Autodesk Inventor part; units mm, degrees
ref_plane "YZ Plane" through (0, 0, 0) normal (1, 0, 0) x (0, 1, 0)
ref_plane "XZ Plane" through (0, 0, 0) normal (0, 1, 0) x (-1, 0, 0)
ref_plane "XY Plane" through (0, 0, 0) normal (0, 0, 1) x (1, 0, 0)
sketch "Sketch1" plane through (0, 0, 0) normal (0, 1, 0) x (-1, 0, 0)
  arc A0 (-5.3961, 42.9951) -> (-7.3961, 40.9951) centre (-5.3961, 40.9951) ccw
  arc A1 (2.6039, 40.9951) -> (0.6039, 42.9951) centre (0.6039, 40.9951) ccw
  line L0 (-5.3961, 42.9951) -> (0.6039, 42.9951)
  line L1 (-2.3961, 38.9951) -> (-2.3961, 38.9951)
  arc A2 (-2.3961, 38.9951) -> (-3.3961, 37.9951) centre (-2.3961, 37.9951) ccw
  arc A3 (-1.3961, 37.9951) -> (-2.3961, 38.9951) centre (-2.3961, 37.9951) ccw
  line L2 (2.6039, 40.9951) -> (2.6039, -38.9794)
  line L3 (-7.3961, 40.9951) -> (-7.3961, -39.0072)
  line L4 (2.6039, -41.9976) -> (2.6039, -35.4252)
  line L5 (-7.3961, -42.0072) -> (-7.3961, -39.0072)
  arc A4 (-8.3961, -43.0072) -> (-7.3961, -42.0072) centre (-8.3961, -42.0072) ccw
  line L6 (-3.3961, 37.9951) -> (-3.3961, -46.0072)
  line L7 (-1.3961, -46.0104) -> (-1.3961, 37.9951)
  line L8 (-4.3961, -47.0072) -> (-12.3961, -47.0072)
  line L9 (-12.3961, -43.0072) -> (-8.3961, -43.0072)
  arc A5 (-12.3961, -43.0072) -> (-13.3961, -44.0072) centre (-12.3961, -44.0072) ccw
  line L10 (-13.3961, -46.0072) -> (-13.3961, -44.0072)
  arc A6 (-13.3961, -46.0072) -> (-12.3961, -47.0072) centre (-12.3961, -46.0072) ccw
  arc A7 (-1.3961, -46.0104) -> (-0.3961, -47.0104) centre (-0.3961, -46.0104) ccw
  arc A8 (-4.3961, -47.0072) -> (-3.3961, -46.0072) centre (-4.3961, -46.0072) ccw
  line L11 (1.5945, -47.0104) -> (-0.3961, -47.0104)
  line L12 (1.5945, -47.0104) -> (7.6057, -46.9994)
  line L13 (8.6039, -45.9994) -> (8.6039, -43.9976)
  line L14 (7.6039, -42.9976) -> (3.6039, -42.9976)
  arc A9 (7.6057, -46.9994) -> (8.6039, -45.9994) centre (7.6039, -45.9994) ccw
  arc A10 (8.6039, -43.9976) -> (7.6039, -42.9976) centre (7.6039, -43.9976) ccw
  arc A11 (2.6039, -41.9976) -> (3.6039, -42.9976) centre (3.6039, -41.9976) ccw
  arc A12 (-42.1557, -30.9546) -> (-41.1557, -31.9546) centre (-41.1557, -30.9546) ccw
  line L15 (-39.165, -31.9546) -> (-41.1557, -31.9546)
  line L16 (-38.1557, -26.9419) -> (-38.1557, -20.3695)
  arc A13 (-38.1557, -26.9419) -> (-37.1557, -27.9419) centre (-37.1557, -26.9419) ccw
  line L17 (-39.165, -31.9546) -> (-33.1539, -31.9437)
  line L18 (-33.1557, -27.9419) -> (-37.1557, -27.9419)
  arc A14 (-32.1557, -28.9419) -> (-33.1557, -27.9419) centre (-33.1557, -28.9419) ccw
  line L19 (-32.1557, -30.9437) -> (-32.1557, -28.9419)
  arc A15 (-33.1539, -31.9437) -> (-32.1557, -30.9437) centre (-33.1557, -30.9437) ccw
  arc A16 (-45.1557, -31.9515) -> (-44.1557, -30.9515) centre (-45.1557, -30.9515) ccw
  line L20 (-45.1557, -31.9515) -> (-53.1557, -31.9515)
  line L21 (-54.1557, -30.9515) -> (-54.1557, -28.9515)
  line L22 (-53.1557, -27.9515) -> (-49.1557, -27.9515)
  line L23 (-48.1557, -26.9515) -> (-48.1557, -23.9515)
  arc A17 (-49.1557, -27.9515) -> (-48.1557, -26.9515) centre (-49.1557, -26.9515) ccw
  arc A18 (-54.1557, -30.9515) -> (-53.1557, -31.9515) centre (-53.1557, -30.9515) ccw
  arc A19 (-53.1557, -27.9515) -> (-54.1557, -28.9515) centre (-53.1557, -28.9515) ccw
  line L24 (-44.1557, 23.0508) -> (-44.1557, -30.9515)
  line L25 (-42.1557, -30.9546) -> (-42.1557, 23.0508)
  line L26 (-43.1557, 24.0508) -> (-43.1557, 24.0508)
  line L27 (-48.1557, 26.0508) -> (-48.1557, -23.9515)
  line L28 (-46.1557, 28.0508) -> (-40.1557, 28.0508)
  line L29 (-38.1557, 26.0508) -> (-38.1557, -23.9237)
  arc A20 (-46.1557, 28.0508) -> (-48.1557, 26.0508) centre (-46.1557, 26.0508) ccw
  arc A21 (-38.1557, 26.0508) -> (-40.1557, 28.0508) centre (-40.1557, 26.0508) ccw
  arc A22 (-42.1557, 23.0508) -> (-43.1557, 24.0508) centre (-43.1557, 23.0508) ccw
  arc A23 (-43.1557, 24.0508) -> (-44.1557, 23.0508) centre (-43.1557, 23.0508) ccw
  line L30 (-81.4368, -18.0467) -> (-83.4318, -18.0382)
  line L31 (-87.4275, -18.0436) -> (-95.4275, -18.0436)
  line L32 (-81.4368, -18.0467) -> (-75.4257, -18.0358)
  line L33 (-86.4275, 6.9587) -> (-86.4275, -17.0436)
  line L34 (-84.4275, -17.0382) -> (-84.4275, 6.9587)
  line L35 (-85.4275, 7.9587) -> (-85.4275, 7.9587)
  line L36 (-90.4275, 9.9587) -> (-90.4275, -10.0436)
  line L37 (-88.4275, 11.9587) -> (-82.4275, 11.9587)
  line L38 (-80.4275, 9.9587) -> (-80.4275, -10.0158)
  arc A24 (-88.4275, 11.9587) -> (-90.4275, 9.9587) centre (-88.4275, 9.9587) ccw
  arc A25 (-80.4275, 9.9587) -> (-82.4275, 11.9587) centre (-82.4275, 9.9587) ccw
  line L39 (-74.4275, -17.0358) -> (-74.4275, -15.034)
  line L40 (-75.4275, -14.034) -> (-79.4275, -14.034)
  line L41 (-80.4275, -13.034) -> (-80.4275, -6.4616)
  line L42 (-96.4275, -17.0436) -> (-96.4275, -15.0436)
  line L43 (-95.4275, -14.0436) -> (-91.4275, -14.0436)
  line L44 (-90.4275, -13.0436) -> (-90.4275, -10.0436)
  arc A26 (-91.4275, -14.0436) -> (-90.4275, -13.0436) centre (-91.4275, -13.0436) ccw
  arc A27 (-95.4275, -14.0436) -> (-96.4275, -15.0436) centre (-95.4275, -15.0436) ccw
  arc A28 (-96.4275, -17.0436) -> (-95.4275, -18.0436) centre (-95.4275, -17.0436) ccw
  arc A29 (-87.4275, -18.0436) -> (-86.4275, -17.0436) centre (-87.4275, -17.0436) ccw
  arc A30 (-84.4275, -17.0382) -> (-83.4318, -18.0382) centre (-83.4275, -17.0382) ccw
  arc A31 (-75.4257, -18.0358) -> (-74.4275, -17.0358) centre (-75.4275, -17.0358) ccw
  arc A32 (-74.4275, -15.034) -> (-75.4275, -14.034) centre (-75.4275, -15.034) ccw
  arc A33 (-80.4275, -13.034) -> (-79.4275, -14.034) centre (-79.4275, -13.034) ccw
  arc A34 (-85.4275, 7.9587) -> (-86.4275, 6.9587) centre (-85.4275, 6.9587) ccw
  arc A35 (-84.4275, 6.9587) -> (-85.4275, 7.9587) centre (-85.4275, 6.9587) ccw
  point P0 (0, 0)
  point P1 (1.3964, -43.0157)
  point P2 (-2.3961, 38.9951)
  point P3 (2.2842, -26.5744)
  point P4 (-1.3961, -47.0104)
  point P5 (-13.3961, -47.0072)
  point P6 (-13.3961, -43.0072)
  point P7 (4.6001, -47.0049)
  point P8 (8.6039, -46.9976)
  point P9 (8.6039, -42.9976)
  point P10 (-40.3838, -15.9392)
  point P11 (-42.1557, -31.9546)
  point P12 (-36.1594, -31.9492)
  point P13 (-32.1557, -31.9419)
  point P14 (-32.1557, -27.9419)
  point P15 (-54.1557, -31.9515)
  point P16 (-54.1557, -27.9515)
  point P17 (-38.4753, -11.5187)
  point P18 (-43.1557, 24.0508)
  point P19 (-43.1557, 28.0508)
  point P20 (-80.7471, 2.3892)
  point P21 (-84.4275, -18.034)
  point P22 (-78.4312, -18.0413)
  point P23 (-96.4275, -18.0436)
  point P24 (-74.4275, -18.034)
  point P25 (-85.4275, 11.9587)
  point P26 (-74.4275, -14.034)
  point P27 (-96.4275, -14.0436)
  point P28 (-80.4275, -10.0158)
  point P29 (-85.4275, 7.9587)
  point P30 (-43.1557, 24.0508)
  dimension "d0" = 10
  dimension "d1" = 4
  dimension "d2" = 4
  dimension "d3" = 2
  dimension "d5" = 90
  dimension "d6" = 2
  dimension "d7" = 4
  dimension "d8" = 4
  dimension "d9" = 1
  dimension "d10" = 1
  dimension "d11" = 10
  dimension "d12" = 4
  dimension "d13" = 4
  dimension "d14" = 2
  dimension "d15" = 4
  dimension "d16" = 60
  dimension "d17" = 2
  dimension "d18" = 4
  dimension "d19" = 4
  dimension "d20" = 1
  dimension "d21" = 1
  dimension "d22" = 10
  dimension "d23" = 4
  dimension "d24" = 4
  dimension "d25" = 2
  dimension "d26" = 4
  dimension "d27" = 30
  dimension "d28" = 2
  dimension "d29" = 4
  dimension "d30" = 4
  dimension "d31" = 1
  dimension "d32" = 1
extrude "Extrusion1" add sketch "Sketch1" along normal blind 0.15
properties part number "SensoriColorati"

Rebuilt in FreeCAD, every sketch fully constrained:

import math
import FreeCAD as App
import Part
import Sketcher

V = App.Vector

doc = App.newDocument("Part")
body = doc.addObject("PartDesign::Body", "Body")
body.AllowCompound = True

sketch1 = body.newObject("Sketcher::SketchObject", "Sketch")
sketch1.AttachmentSupport = (doc.getObject("XZ_Plane"), [""])
sketch1.MapMode = "FlatFace"
sketch1.addGeometry([
    Part.LineSegment(V(-0.6, 43, 0), V(5.4, 43, 0)),
    Part.ArcOfCircle(Part.Circle(V(5.4, 41, 0), V(0, 0, 1), 2), math.radians(0), math.radians(90)),
    Part.LineSegment(V(7.4, 41, 0), V(7.4, -42, 0)),
    Part.ArcOfCircle(Part.Circle(V(8.4, -42, 0), V(0, 0, 1), 1), math.radians(180), math.radians(270)),
    Part.LineSegment(V(8.4, -43, 0), V(12.4, -43, 0)),
    Part.ArcOfCircle(Part.Circle(V(12.4, -44, 0), V(0, 0, 1), 1), math.radians(0), math.radians(90)),
    Part.LineSegment(V(13.4, -44, 0), V(13.4, -46, 0)),
    Part.ArcOfCircle(Part.Circle(V(12.4, -46, 0), V(0, 0, 1), 1), math.radians(-90), math.radians(0)),
    Part.LineSegment(V(12.4, -47, 0), V(4.4, -47, 0)),
    Part.ArcOfCircle(Part.Circle(V(4.4, -46, 0), V(0, 0, 1), 1), math.radians(180), math.radians(270)),
    Part.LineSegment(V(3.4, -46, 0), V(3.4, 38, 0)),
    Part.ArcOfCircle(Part.Circle(V(2.4, 38, 0), V(0, 0, 1), 1), math.radians(0), math.radians(180)),
    Part.LineSegment(V(1.4, 38, 0), V(1.4, -46, 0)),
    Part.ArcOfCircle(Part.Circle(V(0.4, -46, 0), V(0, 0, 1), 1), math.radians(-90), math.radians(0)),
    Part.LineSegment(V(0.4, -47, 0), V(-1.6, -47, 0)),
    Part.LineSegment(V(-1.6, -47, 0), V(-7.6, -47, 0)),
    Part.ArcOfCircle(Part.Circle(V(-7.6, -46, 0), V(0, 0, 1), 1), math.radians(180), math.radians(270)),
    Part.LineSegment(V(-8.6, -46, 0), V(-8.6, -44, 0)),
    Part.ArcOfCircle(Part.Circle(V(-7.6, -44, 0), V(0, 0, 1), 1), math.radians(90), math.radians(180)),
    Part.LineSegment(V(-7.6, -43, 0), V(-3.6, -43, 0)),
    Part.ArcOfCircle(Part.Circle(V(-3.6, -42, 0), V(0, 0, 1), 1), math.radians(-90), math.radians(0)),
    Part.LineSegment(V(-2.6, -42, 0), V(-2.6, 41, 0)),
    Part.ArcOfCircle(Part.Circle(V(-0.6, 41, 0), V(0, 0, 1), 2), math.radians(90), math.radians(180)),
    Part.LineSegment(V(42.2, 23.1, 0), V(42.2, -31, 0)),
    Part.ArcOfCircle(Part.Circle(V(41.2, -31, 0), V(0, 0, 1), 1), math.radians(-90), math.radians(0)),
    Part.LineSegment(V(41.2, -32, 0), V(39.2, -32, 0)),
    Part.LineSegment(V(39.2, -32, 0), V(33.2, -31.9, 0)),
    Part.ArcOfCircle(Part.Circle(V(33.2, -30.9, 0), V(0, 0, 1), 1), math.radians(180), math.radians(270)),
    Part.LineSegment(V(32.2, -30.9, 0), V(32.2, -28.9, 0)),
    Part.ArcOfCircle(Part.Circle(V(33.2, -28.9, 0), V(0, 0, 1), 1), math.radians(90), math.radians(180)),
    Part.LineSegment(V(33.2, -27.9, 0), V(37.2, -27.9, 0)),
    Part.ArcOfCircle(Part.Circle(V(37.2, -26.9, 0), V(0, 0, 1), 1), math.radians(-90), math.radians(0)),
    Part.LineSegment(V(38.2, -26.9, 0), V(38.2, 26.1, 0)),
    Part.ArcOfCircle(Part.Circle(V(40.2, 26.1, 0), V(0, 0, 1), 2), math.radians(90), math.radians(180)),
    Part.LineSegment(V(40.2, 28.1, 0), V(46.2, 28.1, 0)),
    Part.ArcOfCircle(Part.Circle(V(46.2, 26.1, 0), V(0, 0, 1), 2), math.radians(0), math.radians(90)),
    Part.LineSegment(V(48.2, 26.1, 0), V(48.2, -27, 0)),
    Part.ArcOfCircle(Part.Circle(V(49.2, -27, 0), V(0, 0, 1), 1), math.radians(180), math.radians(270)),
    Part.LineSegment(V(49.2, -28, 0), V(53.2, -28, 0)),
    Part.ArcOfCircle(Part.Circle(V(53.2, -29, 0), V(0, 0, 1), 1), math.radians(0), math.radians(90)),
    Part.LineSegment(V(54.2, -29, 0), V(54.2, -31, 0)),
    Part.ArcOfCircle(Part.Circle(V(53.2, -31, 0), V(0, 0, 1), 1), math.radians(-90), math.radians(0)),
    Part.LineSegment(V(53.2, -32, 0), V(45.2, -32, 0)),
    Part.ArcOfCircle(Part.Circle(V(45.2, -31, 0), V(0, 0, 1), 1), math.radians(180), math.radians(270)),
    Part.LineSegment(V(44.2, -31, 0), V(44.2, 23.1, 0)),
    Part.ArcOfCircle(Part.Circle(V(43.2, 23.1, 0), V(0, 0, 1), 1), math.radians(0), math.radians(180)),
    Part.LineSegment(V(83.4, -18, 0), V(81.4, -18, 0)),
    Part.LineSegment(V(81.4, -18, 0), V(75.4, -18, 0)),
    Part.ArcOfCircle(Part.Circle(V(75.4, -17, 0), V(0, 0, 1), 1), math.radians(180), math.radians(270)),
    Part.LineSegment(V(74.4, -17, 0), V(74.4, -15, 0)),
    Part.ArcOfCircle(Part.Circle(V(75.4, -15, 0), V(0, 0, 1), 1), math.radians(90), math.radians(180)),
    Part.LineSegment(V(75.4, -14, 0), V(79.4, -14, 0)),
    Part.ArcOfCircle(Part.Circle(V(79.4, -13, 0), V(0, 0, 1), 1), math.radians(-90), math.radians(0)),
    Part.LineSegment(V(80.4, -13, 0), V(80.4, 10, 0)),
    Part.ArcOfCircle(Part.Circle(V(82.4, 10, 0), V(0, 0, 1), 2), math.radians(90), math.radians(180)),
    Part.LineSegment(V(82.4, 12, 0), V(88.4, 12, 0)),
    Part.ArcOfCircle(Part.Circle(V(88.4, 10, 0), V(0, 0, 1), 2), math.radians(0), math.radians(90)),
    Part.LineSegment(V(90.4, 10, 0), V(90.4, -13, 0)),
    Part.ArcOfCircle(Part.Circle(V(91.4, -13, 0), V(0, 0, 1), 1), math.radians(180), math.radians(270)),
    Part.LineSegment(V(91.4, -14, 0), V(95.4, -14, 0)),
    Part.ArcOfCircle(Part.Circle(V(95.4, -15, 0), V(0, 0, 1), 1), math.radians(0), math.radians(90)),
    Part.LineSegment(V(96.4, -15, 0), V(96.4, -17, 0)),
    Part.ArcOfCircle(Part.Circle(V(95.4, -17, 0), V(0, 0, 1), 1), math.radians(-90), math.radians(0)),
    Part.LineSegment(V(95.4, -18, 0), V(87.4, -18, 0)),
    Part.ArcOfCircle(Part.Circle(V(87.4, -17, 0), V(0, 0, 1), 1), math.radians(180), math.radians(270)),
    Part.LineSegment(V(86.4, -17, 0), V(86.4, 7, 0)),
    Part.ArcOfCircle(Part.Circle(V(85.4, 7, 0), V(0, 0, 1), 1), math.radians(0), math.radians(180)),
    Part.LineSegment(V(84.4, 7, 0), V(84.4, -17, 0)),
    Part.ArcOfCircle(Part.Circle(V(83.4, -17, 0), V(0, 0, 1), 1), math.radians(-90), math.radians(0)),
], False)
sketch1.addConstraint([
    Sketcher.Constraint("Tangent", 0, 2, 1, 2),
    Sketcher.Constraint("Tangent", 1, 1, 2, 1),
    Sketcher.Constraint("Tangent", 2, 2, 3, 1),
    Sketcher.Constraint("Tangent", 3, 2, 4, 1),
    Sketcher.Constraint("Tangent", 4, 2, 5, 2),
    Sketcher.Constraint("Tangent", 5, 1, 6, 1),
    Sketcher.Constraint("Tangent", 6, 2, 7, 2),
    Sketcher.Constraint("Tangent", 7, 1, 8, 1),
    Sketcher.Constraint("Tangent", 8, 2, 9, 2),
    Sketcher.Constraint("Tangent", 9, 1, 10, 1),
    Sketcher.Constraint("Tangent", 10, 2, 11, 1),
    Sketcher.Constraint("Tangent", 11, 2, 12, 1),
    Sketcher.Constraint("Tangent", 12, 2, 13, 2),
    Sketcher.Constraint("Tangent", 13, 1, 14, 1),
    Sketcher.Constraint("Coincident", 14, 2, 15, 1),
    Sketcher.Constraint("Tangent", 15, 2, 16, 2),
    Sketcher.Constraint("Tangent", 16, 1, 17, 1),
    Sketcher.Constraint("Tangent", 17, 2, 18, 2),
    Sketcher.Constraint("Tangent", 18, 1, 19, 1),
    Sketcher.Constraint("Tangent", 19, 2, 20, 1),
    Sketcher.Constraint("Tangent", 20, 2, 21, 1),
    Sketcher.Constraint("Tangent", 21, 2, 22, 2),
    Sketcher.Constraint("Tangent", 22, 1, 0, 1),
    Sketcher.Constraint("Tangent", 23, 2, 24, 2),
    Sketcher.Constraint("Tangent", 24, 1, 25, 1),
    Sketcher.Constraint("Coincident", 25, 2, 26, 1),
    Sketcher.Constraint("Tangent", 26, 2, 27, 2),
    Sketcher.Constraint("Tangent", 27, 1, 28, 1),
    Sketcher.Constraint("Tangent", 28, 2, 29, 2),
    Sketcher.Constraint("Tangent", 29, 1, 30, 1),
    Sketcher.Constraint("Tangent", 30, 2, 31, 1),
    Sketcher.Constraint("Tangent", 31, 2, 32, 1),
    Sketcher.Constraint("Tangent", 32, 2, 33, 2),
    Sketcher.Constraint("Tangent", 33, 1, 34, 1),
    Sketcher.Constraint("Tangent", 34, 2, 35, 2),
    Sketcher.Constraint("Tangent", 35, 1, 36, 1),
    Sketcher.Constraint("Tangent", 36, 2, 37, 1),
    Sketcher.Constraint("Tangent", 37, 2, 38, 1),
    Sketcher.Constraint("Tangent", 38, 2, 39, 2),
    Sketcher.Constraint("Tangent", 39, 1, 40, 1),
    Sketcher.Constraint("Tangent", 40, 2, 41, 2),
    Sketcher.Constraint("Tangent", 41, 1, 42, 1),
    Sketcher.Constraint("Tangent", 42, 2, 43, 2),
    Sketcher.Constraint("Tangent", 43, 1, 44, 1),
    Sketcher.Constraint("Tangent", 44, 2, 45, 1),
    Sketcher.Constraint("Tangent", 45, 2, 23, 1),
    Sketcher.Constraint("Coincident", 46, 2, 47, 1),
    Sketcher.Constraint("Tangent", 47, 2, 48, 2),
    Sketcher.Constraint("Tangent", 48, 1, 49, 1),
    Sketcher.Constraint("Tangent", 49, 2, 50, 2),
    Sketcher.Constraint("Tangent", 50, 1, 51, 1),
    Sketcher.Constraint("Tangent", 51, 2, 52, 1),
    Sketcher.Constraint("Tangent", 52, 2, 53, 1),
    Sketcher.Constraint("Tangent", 53, 2, 54, 2),
    Sketcher.Constraint("Tangent", 54, 1, 55, 1),
    Sketcher.Constraint("Tangent", 55, 2, 56, 2),
    Sketcher.Constraint("Tangent", 56, 1, 57, 1),
    Sketcher.Constraint("Tangent", 57, 2, 58, 1),
    Sketcher.Constraint("Tangent", 58, 2, 59, 1),
    Sketcher.Constraint("Tangent", 59, 2, 60, 2),
    Sketcher.Constraint("Tangent", 60, 1, 61, 1),
    Sketcher.Constraint("Tangent", 61, 2, 62, 2),
    Sketcher.Constraint("Tangent", 62, 1, 63, 1),
    Sketcher.Constraint("Tangent", 63, 2, 64, 2),
    Sketcher.Constraint("Tangent", 64, 1, 65, 1),
    Sketcher.Constraint("Tangent", 65, 2, 66, 1),
    Sketcher.Constraint("Tangent", 66, 2, 67, 1),
    Sketcher.Constraint("Tangent", 67, 2, 68, 2),
    Sketcher.Constraint("Tangent", 68, 1, 46, 1),
    Sketcher.Constraint("Horizontal", 0),
    Sketcher.Constraint("Vertical", 2),
    Sketcher.Constraint("Horizontal", 4),
    Sketcher.Constraint("Vertical", 6),
    Sketcher.Constraint("Horizontal", 8),
    Sketcher.Constraint("Vertical", 10),
    Sketcher.Constraint("Vertical", 12),
    Sketcher.Constraint("Horizontal", 14),
    Sketcher.Constraint("Vertical", 17),
    Sketcher.Constraint("Horizontal", 19),
    Sketcher.Constraint("Vertical", 21),
    Sketcher.Constraint("Vertical", 23),
    Sketcher.Constraint("Horizontal", 25),
    Sketcher.Constraint("Vertical", 28),
    Sketcher.Constraint("Horizontal", 30),
    Sketcher.Constraint("Vertical", 32),
    Sketcher.Constraint("Horizontal", 34),
    Sketcher.Constraint("Vertical", 36),
    Sketcher.Constraint("Horizontal", 38),
    Sketcher.Constraint("Vertical", 40),
    Sketcher.Constraint("Horizontal", 42),
    Sketcher.Constraint("Vertical", 44),
    Sketcher.Constraint("Vertical", 49),
    Sketcher.Constraint("Horizontal", 51),
    Sketcher.Constraint("Vertical", 53),
    Sketcher.Constraint("Horizontal", 55),
    Sketcher.Constraint("Vertical", 57),
    Sketcher.Constraint("Horizontal", 59),
    Sketcher.Constraint("Vertical", 61),
    Sketcher.Constraint("Horizontal", 63),
    Sketcher.Constraint("Vertical", 65),
    Sketcher.Constraint("Vertical", 67),
    Sketcher.Constraint("Equal", 3, 5),
    Sketcher.Constraint("Equal", 5, 7),
    Sketcher.Constraint("Equal", 7, 9),
    Sketcher.Constraint("Equal", 9, 11),
    Sketcher.Constraint("Equal", 11, 13),
    Sketcher.Constraint("Equal", 13, 16),
    Sketcher.Constraint("Equal", 16, 18),
    Sketcher.Constraint("Equal", 18, 20),
    Sketcher.Constraint("Equal", 1, 22),
    Sketcher.Constraint("Equal", 20, 24),
    Sketcher.Constraint("Equal", 24, 27),
    Sketcher.Constraint("Equal", 27, 29),
    Sketcher.Constraint("Equal", 29, 31),
    Sketcher.Constraint("Equal", 22, 33),
    Sketcher.Constraint("Equal", 33, 35),
    Sketcher.Constraint("Equal", 31, 37),
    Sketcher.Constraint("Equal", 37, 39),
    Sketcher.Constraint("Equal", 39, 41),
    Sketcher.Constraint("Equal", 41, 43),
    Sketcher.Constraint("Equal", 43, 45),
    Sketcher.Constraint("Equal", 45, 48),
    Sketcher.Constraint("Equal", 48, 50),
    Sketcher.Constraint("Equal", 50, 52),
    Sketcher.Constraint("Equal", 35, 54),
    Sketcher.Constraint("Equal", 54, 56),
    Sketcher.Constraint("Equal", 52, 58),
    Sketcher.Constraint("Equal", 58, 60),
    Sketcher.Constraint("Equal", 60, 62),
    Sketcher.Constraint("Equal", 62, 64),
    Sketcher.Constraint("Equal", 64, 66),
    Sketcher.Constraint("Equal", 66, 68),
    Sketcher.Constraint("Parallel", 15, 26),
    Sketcher.Constraint("Parallel", 26, 47),
    Sketcher.Constraint("Equal", 4, 19),
    Sketcher.Constraint("Equal", 14, 25),
    Sketcher.Constraint("Equal", 19, 30),
    Sketcher.Constraint("Equal", 0, 34),
    Sketcher.Constraint("Equal", 30, 38),
    Sketcher.Constraint("Equal", 8, 42),
    Sketcher.Constraint("Equal", 38, 51),
    Sketcher.Constraint("Equal", 34, 55),
    Sketcher.Constraint("Equal", 51, 59),
    Sketcher.Constraint("Equal", 42, 63),
    Sketcher.Constraint("Equal", 17, 28),
    Sketcher.Constraint("Equal", 6, 40),
    Sketcher.Constraint("Equal", 28, 49),
    Sketcher.Constraint("Equal", 40, 61),
    Sketcher.Constraint("Equal", 26, 47),
    Sketcher.Constraint("Radius", 1, 2.0),
    Sketcher.Constraint("Radius", 3, 1.0),
    Sketcher.Constraint("DistanceX", 4, 1, 4, 2, 4.0),
    Sketcher.Constraint("DistanceY", 6, 2, 6, 1, 2.0),
    Sketcher.Constraint("DistanceX", 0, 1, 0, 2, 6.0),
    Sketcher.Constraint("DistanceX", 8, 2, 8, 1, 8.0),
    Sketcher.Constraint("DistanceY", 67, 2, 67, 1, 23.997),
    Sketcher.Constraint("Distance", 26, 6.011),
    Sketcher.Constraint("Distance", 46, 1.995),
    Sketcher.Constraint("DistanceX", 14, 2, 14, 1, 1.9906),
    Sketcher.Constraint("DistanceY", 2, 2, 2, 1, 83.0023),
    Sketcher.Constraint("DistanceY", 10, 1, 10, 2, 84.0023),
    Sketcher.Constraint("DistanceY", 12, 2, 12, 1, 84.0055),
    Sketcher.Constraint("DistanceY", 17, 1, 17, 2, 2.0018),
    Sketcher.Constraint("DistanceY", 23, 2, 23, 1, 54.0054),
    Sketcher.Constraint("DistanceY", 32, 1, 32, 2, 52.9927),
    Sketcher.Constraint("DistanceY", 36, 2, 36, 1, 53.0023),
    Sketcher.Constraint("DistanceY", 53, 1, 53, 2, 22.9927),
    Sketcher.Constraint("DistanceY", 57, 2, 57, 1, 23.0023),
    Sketcher.Constraint("DistanceX", -1, 1, 1, 3, 5.396),
    Sketcher.Constraint("DistanceY", -1, 1, 1, 3, 40.995),
    Sketcher.Constraint("DistanceY", 29, 3, -1, 1, 28.942),
    Sketcher.Constraint("DistanceY", 50, 3, -1, 1, 15.034),
    Sketcher.Constraint("DistanceX", -1, 1, 25, 2, 39.165),
    Sketcher.Constraint("DistanceX", -1, 1, 48, 3, 75.4275),
])
pad1 = body.newObject("PartDesign::Pad", "Pad")
pad1.Profile = sketch1
pad1.Length = 0.15
pad1.Reversed = True

doc.recompute()
